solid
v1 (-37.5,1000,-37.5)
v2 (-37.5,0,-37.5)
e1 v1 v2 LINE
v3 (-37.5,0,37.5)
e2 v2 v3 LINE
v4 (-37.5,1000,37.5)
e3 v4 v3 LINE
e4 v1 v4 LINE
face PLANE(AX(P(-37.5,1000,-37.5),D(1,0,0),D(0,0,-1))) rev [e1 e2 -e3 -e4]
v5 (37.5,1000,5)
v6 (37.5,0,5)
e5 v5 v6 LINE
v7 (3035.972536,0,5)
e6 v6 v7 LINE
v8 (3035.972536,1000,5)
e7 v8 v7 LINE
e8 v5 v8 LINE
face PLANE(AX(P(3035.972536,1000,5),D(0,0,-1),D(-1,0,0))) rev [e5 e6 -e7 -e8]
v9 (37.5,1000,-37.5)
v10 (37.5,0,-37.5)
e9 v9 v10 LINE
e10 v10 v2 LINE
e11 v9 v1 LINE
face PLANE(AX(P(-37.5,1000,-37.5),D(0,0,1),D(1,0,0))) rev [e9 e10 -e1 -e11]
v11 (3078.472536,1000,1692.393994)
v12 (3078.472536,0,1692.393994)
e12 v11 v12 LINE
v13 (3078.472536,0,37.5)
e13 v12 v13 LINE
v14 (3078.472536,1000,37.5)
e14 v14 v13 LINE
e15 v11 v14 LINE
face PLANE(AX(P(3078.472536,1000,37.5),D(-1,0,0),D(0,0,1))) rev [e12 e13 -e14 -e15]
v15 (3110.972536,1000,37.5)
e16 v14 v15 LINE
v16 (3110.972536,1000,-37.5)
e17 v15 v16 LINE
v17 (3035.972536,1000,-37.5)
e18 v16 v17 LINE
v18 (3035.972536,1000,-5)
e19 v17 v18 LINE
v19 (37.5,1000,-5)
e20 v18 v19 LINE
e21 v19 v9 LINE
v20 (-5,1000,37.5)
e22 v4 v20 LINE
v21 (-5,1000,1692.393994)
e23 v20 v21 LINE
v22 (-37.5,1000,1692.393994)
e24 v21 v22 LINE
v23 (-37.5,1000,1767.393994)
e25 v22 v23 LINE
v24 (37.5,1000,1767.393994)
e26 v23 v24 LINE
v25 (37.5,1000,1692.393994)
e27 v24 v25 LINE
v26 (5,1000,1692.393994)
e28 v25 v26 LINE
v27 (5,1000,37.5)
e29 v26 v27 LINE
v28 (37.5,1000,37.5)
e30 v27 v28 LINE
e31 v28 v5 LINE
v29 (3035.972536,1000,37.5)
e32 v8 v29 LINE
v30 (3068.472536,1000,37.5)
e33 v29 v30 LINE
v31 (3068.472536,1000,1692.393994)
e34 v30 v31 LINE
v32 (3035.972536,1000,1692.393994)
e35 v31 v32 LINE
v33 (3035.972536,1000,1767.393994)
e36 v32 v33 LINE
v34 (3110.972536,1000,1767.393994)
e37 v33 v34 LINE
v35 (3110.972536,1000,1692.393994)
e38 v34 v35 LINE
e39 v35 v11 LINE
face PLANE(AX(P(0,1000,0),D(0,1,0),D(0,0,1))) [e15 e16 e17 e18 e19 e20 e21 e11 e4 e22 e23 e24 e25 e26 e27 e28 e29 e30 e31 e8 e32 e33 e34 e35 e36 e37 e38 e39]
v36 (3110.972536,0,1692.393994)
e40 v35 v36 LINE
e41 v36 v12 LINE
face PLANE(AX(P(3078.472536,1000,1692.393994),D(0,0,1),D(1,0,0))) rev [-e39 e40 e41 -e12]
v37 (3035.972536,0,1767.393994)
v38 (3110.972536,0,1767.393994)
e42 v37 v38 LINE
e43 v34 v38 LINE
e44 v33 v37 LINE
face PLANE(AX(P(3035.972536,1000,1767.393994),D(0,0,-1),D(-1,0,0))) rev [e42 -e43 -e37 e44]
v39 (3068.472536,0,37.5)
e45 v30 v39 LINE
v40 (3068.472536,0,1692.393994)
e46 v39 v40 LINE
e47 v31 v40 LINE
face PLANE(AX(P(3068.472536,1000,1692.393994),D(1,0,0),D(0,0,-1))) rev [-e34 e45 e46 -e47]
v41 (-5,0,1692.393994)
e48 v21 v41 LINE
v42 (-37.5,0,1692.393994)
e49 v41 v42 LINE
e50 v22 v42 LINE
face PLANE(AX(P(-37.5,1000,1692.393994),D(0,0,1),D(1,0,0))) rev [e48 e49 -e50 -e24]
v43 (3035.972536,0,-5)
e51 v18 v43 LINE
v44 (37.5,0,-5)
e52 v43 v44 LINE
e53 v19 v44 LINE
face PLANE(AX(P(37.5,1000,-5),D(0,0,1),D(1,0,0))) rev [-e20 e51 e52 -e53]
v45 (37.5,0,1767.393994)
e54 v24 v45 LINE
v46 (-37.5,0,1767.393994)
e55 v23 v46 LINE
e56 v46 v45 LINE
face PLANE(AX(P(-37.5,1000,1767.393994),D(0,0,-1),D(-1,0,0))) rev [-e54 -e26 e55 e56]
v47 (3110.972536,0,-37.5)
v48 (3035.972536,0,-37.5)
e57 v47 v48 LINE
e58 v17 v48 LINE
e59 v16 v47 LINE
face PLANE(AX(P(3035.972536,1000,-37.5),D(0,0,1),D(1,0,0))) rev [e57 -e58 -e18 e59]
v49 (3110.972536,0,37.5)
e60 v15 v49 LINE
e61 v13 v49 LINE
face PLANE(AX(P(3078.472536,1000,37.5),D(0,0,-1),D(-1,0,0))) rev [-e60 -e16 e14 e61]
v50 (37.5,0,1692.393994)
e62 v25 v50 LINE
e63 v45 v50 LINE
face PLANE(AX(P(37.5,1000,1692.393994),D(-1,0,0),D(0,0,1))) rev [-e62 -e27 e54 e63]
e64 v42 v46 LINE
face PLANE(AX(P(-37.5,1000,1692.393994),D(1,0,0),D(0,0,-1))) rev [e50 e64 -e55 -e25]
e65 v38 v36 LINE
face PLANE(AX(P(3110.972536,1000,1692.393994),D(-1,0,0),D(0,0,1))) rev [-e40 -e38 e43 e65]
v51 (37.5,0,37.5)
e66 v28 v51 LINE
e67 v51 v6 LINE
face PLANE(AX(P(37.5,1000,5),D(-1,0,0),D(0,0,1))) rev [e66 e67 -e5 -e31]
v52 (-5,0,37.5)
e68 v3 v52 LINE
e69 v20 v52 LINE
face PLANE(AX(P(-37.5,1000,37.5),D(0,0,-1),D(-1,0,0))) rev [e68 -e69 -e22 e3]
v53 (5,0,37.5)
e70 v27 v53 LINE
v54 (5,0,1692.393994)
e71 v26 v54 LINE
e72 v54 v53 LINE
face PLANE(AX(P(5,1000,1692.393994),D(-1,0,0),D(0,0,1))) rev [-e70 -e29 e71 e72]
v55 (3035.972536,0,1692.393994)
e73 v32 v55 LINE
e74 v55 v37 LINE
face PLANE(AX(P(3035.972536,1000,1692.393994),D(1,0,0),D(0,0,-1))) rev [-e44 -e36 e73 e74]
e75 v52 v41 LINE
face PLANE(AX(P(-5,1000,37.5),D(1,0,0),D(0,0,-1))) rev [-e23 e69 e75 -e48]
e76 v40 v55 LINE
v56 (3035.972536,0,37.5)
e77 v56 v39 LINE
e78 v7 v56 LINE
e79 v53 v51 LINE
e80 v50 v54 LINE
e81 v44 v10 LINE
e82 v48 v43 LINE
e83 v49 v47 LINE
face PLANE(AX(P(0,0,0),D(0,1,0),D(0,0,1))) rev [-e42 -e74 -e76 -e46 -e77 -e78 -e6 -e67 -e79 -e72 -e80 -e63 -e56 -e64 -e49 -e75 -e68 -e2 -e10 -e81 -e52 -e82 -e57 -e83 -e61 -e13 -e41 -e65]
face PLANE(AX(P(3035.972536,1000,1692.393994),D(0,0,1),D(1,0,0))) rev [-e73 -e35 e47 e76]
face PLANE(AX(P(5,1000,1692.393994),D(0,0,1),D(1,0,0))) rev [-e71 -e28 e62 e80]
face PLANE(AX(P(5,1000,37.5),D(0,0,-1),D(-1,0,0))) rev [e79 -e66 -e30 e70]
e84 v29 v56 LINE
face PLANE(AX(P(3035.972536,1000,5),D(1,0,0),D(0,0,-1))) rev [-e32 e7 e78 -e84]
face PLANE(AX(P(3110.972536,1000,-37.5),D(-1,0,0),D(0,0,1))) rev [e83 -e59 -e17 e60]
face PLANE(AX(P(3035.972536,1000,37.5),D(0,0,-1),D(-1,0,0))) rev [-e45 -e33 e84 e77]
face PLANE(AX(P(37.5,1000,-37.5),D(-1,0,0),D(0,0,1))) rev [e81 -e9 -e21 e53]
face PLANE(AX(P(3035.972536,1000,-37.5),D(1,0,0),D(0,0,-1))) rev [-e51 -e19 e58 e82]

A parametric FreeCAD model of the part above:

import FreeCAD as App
import Part
import Sketcher
Q = App.Units.Quantity


def add_polygon(sketch, points):
    """Adds a closed chain of lines whose ends are joined by coincident constraints."""
    first, n = sketch.GeometryCount, len(points)
    for a, b in zip(points, points[1:] + points[:1]):
        sketch.addGeometry(Part.LineSegment(App.Vector(*a, 0), App.Vector(*b, 0)), False)
    for i in range(n):
        sketch.addConstraint(Sketcher.Constraint("Coincident", first + i, 2, first + (i + 1) % n, 1))

doc = App.newDocument("Part")
params = doc.addObject("Spreadsheet::Sheet", "Params")
for row, (alias, value) in enumerate([
    ("sketch1_width", "75 mm"),
    ("sketch1_width2", "32.5 mm"),
    ("pad1_length", "1000 mm"),
], start=1):
    params.set(f"A{row}", alias)
    params.set(f"B{row}", "=" + value)
    params.setAlias(f"B{row}", alias)

body = doc.addObject("PartDesign::Body", "Body")

sketch1 = body.newObject("Sketcher::SketchObject", "Sketch")
sketch1.AttachmentSupport = (doc.getObject("XZ_Plane"), [""])
sketch1.MapMode = "FlatFace"
add_polygon(sketch1, [(37.5, -37.5), (-37.5, -37.5), (-37.5, 37.5), (-5, 37.5), (-5, 1692.393994), (-37.5, 1692.393994), (-37.5, 1767.393994), (37.5, 1767.393994), (37.5, 1692.393994), (5, 1692.393994), (5, 37.5), (37.5, 37.5), (37.5, 5), (3035.972536, 5), (3035.972536, 37.5), (3068.472536, 37.5), (3068.472536, 1692.393994), (3035.972536, 1692.393994), (3035.972536, 1767.393994), (3110.972536, 1767.393994), (3110.972536, 1692.393994), (3078.472536, 1692.393994), (3078.472536, 37.5), (3110.972536, 37.5), (3110.972536, -37.5), (3035.972536, -37.5), (3035.972536, -5), (37.5, -5)])
sketch1.addConstraint([
    Sketcher.Constraint("Horizontal", 0),
    Sketcher.Constraint("Vertical", 1),
    Sketcher.Constraint("Horizontal", 2),
    Sketcher.Constraint("Vertical", 3),
    Sketcher.Constraint("Horizontal", 4),
    Sketcher.Constraint("Vertical", 5),
    Sketcher.Constraint("Horizontal", 6),
    Sketcher.Constraint("Vertical", 7),
    Sketcher.Constraint("Horizontal", 8),
    Sketcher.Constraint("Vertical", 9),
    Sketcher.Constraint("Horizontal", 10),
    Sketcher.Constraint("Vertical", 11),
    Sketcher.Constraint("Horizontal", 12),
    Sketcher.Constraint("Vertical", 13),
    Sketcher.Constraint("Horizontal", 14),
    Sketcher.Constraint("Vertical", 15),
    Sketcher.Constraint("Horizontal", 16),
    Sketcher.Constraint("Vertical", 17),
    Sketcher.Constraint("Horizontal", 18),
    Sketcher.Constraint("Vertical", 19),
    Sketcher.Constraint("Horizontal", 20),
    Sketcher.Constraint("Vertical", 21),
    Sketcher.Constraint("Horizontal", 22),
    Sketcher.Constraint("Vertical", 23),
    Sketcher.Constraint("Horizontal", 24),
    Sketcher.Constraint("Vertical", 25),
    Sketcher.Constraint("Horizontal", 26),
    Sketcher.Constraint("Vertical", 27),
    Sketcher.Constraint("Symmetric", 0, 2, 10, 2, -1, 1),
    Sketcher.Constraint("Symmetric", 1, 2, 27, 2, -1, 1),
    Sketcher.Constraint("Symmetric", 4, 2, 7, 2, -2),
    Sketcher.Constraint("Symmetric", 13, 2, 24, 2, -1),
    Sketcher.Constraint("Horizontal", 10, 2, 13, 2),
    Sketcher.Constraint("Horizontal", 8, 2, 15, 2),
    Sketcher.Constraint("Horizontal", 6, 2, 17, 2),
    Sketcher.Constraint("Horizontal", 16, 2, 19, 2),
    Sketcher.Constraint("Horizontal", 14, 2, 21, 2),
    Sketcher.Constraint("Vertical", 1, 2, 4, 2),
    Sketcher.Constraint("Vertical", 13, 2, 16, 2),
    Sketcher.Constraint("Vertical", 19, 2, 22, 2),
    Sketcher.Constraint("Equal", 4, 8),
    Sketcher.Constraint("Equal", 10, 14),
    Sketcher.Constraint("Equal", 6, 18),
    Sketcher.Constraint("Equal", 16, 20),
    Sketcher.Constraint("Equal", 24, 1),
    Sketcher.Constraint("Equal", 1, 5),
    Sketcher.Constraint("Equal", 22, 11),
    Sketcher.Constraint("Equal", 13, 25),
    Sketcher.Constraint("DistanceX", 0, 2, 0, 1, Q("75 mm")),
    Sketcher.Constraint("DistanceX", 2, 1, 2, 2, Q("32.5 mm")),
    Sketcher.Constraint("DistanceX", 12, 1, 12, 2, Q("2998.472536 mm")),
    Sketcher.Constraint("DistanceY", 3, 1, 3, 2, Q("1654.893994 mm")),
])
sketch1.setExpression("Constraints[76]", "Params.sketch1_width")
sketch1.setExpression("Constraints[77]", "Params.sketch1_width2")
pad1 = body.newObject("PartDesign::Pad", "Pad")
pad1.Profile = sketch1
pad1.setExpression("Length", "Params.pad1_length")
pad1.Reversed = True

doc.recompute()
